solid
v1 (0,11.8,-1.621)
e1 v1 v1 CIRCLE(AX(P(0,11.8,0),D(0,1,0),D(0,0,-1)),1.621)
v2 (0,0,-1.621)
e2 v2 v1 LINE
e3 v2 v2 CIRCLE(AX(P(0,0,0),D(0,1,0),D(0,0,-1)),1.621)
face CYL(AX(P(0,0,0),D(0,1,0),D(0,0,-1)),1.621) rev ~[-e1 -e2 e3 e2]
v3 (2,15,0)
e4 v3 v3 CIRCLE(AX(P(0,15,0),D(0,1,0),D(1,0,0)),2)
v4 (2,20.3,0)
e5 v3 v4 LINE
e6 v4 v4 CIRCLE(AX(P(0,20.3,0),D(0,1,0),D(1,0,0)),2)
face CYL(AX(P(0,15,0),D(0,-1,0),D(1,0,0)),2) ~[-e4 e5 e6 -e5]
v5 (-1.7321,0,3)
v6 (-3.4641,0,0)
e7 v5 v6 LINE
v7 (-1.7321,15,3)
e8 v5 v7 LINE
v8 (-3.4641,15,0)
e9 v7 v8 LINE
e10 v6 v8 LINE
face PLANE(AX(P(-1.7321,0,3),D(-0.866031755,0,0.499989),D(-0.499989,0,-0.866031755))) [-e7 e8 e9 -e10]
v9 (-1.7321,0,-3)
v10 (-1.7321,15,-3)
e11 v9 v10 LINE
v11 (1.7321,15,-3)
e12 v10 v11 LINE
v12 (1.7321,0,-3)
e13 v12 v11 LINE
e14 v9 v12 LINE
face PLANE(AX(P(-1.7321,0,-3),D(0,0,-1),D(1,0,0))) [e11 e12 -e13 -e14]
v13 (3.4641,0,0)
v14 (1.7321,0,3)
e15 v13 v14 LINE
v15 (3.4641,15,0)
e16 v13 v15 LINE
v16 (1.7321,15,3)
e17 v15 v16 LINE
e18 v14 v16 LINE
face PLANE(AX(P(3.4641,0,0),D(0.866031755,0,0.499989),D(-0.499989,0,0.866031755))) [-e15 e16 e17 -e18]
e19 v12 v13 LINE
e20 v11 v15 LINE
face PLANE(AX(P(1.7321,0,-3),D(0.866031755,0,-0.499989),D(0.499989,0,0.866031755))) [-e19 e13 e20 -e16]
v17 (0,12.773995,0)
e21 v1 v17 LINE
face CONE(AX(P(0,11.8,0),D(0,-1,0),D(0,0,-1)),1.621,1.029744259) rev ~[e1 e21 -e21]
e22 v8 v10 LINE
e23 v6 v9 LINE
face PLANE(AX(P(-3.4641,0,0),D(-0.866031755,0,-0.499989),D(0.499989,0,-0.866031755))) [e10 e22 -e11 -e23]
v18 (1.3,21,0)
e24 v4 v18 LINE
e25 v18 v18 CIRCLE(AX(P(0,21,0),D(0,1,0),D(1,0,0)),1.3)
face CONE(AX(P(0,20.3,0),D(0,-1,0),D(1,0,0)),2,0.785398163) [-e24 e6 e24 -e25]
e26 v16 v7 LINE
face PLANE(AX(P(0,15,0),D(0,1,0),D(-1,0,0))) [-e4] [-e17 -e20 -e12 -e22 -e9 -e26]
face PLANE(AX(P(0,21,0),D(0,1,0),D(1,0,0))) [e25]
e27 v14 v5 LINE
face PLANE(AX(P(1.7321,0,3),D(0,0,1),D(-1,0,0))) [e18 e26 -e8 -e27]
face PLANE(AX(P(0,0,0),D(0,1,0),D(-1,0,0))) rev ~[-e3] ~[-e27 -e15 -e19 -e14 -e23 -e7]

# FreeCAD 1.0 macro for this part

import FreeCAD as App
import Part
import Sketcher
Q = App.Units.Quantity


def edges_at(feature, points):
    """Names of the edges that pass closest to the given points."""
    edges = feature.Shape.Edges
    near = lambda p: min(range(len(edges)), key=lambda i: edges[i].distToShape(Part.Vertex(*p))[0])
    return sorted({f"Edge{near(p) + 1}" for p in points})

doc = App.newDocument("Part")
body = doc.addObject("PartDesign::Body", "Body")

# Sketch on XZ plane
sketch1 = doc.addObject("Sketcher::SketchObject", "Sketch")
body.addObject(sketch1)
sketch1.AttachmentSupport = (doc.XZ_Plane, [""])
sketch1.MapMode = "FlatFace"
sketch1.addGeometry(Part.LineSegment(App.Vector(3.5, 0, 0), App.Vector(1.7, -3, 0)), False)
sketch1.addGeometry(Part.LineSegment(App.Vector(1.7, -3, 0), App.Vector(-1.7, -3, 0)), False)
sketch1.addGeometry(Part.LineSegment(App.Vector(-1.7, -3, 0), App.Vector(-3.5, 0, 0)), False)
sketch1.addGeometry(Part.LineSegment(App.Vector(-3.5, 0, 0), App.Vector(-1.7, 3, 0)), False)
sketch1.addGeometry(Part.LineSegment(App.Vector(-1.7, 3, 0), App.Vector(1.7, 3, 0)), False)
sketch1.addGeometry(Part.LineSegment(App.Vector(1.7, 3, 0), App.Vector(3.5, 0, 0)), False)
sketch1.addConstraint(Sketcher.Constraint("Coincident", 0, 2, 1, 1))
sketch1.addConstraint(Sketcher.Constraint("Coincident", 1, 2, 2, 1))
sketch1.addConstraint(Sketcher.Constraint("Coincident", 2, 2, 3, 1))
sketch1.addConstraint(Sketcher.Constraint("Coincident", 3, 2, 4, 1))
sketch1.addConstraint(Sketcher.Constraint("Coincident", 4, 2, 5, 1))
sketch1.addConstraint(Sketcher.Constraint("Coincident", 5, 2, 0, 1))
sketch1.addConstraint(Sketcher.Constraint("Horizontal", 1))
sketch1.addConstraint(Sketcher.Constraint("Horizontal", 4))
sketch1.addConstraint(Sketcher.Constraint("Symmetric", 0, 2, 3, 2, -1, 1))
sketch1.addConstraint(Sketcher.Constraint("Symmetric", 2, 2, 5, 2, -1, 1))
sketch1.addConstraint(Sketcher.Constraint("PointOnObject", 2, 2, -1))
sketch1.addConstraint(Sketcher.Constraint("Parallel", 2, 5))
sketch1.addConstraint(Sketcher.Constraint("Vertical", 1, 2, 3, 2))
sketch1.addConstraint(Sketcher.Constraint("DistanceY", 0, 2, -1, 1, 3.0))
sketch1.addConstraint(Sketcher.Constraint("Angle", 0, Q("-119.9993 deg")))
sketch1.addConstraint(Sketcher.Constraint("DistanceX", 1, 2, 1, 1, 3.4642))
pad1 = doc.addObject("PartDesign::Pad", "Pad")
body.addObject(pad1)
pad1.Profile = sketch1
pad1.Length = 15
pad1.Reversed = True

# Sketch on XZ plane
sketch2 = doc.addObject("Sketcher::SketchObject", "Sketch001")
body.addObject(sketch2)
sketch2.AttachmentSupport = (doc.XZ_Plane, [""])
sketch2.MapMode = "FlatFace"
sketch2.addGeometry(Part.Circle(App.Vector(0, 0, 0), App.Vector(0, 0, 1), 1.6), False)
sketch2.addConstraint(Sketcher.Constraint("Coincident", 0, 3, -1, 1))
sketch2.addConstraint(Sketcher.Constraint("Diameter", 0, 3.242))
doc.recompute()
hole = doc.addObject("PartDesign::Hole", "Hole")
body.addObject(hole)
hole.Profile = sketch2
hole.ThreadType = "None"
hole.Diameter = 3.242
hole.DepthType = "Dimension"
hole.Depth = 11.8
hole.DrillPoint = "Angled"
hole.DrillPointAngle = 118

# Sketch on XZ plane
sketch3 = doc.addObject("Sketcher::SketchObject", "Sketch002")
body.addObject(sketch3)
sketch3.AttachmentSupport = (doc.XZ_Plane, [""])
sketch3.MapMode = "FlatFace"
sketch3.AttachmentOffset = App.Placement(App.Vector(0, 0, -15), App.Rotation())
sketch3.addGeometry(Part.Circle(App.Vector(0, 0, 0), App.Vector(0, 0, 1), 2), False)
sketch3.addConstraint(Sketcher.Constraint("Coincident", 0, 3, -1, 1))
sketch3.addConstraint(Sketcher.Constraint("Diameter", 0, 4.0))
pad2 = doc.addObject("PartDesign::Pad", "Pad001")
body.addObject(pad2)
pad2.Profile = sketch3
pad2.Length = 6
pad2.Reversed = True
doc.recompute()

chamfer = doc.addObject("PartDesign::Chamfer", "Chamfer")
body.addObject(chamfer)
chamfer.Base = (pad2, edges_at(pad2, [(-2, 21, 0)]))
chamfer.Size = 0.7

doc.recompute()
